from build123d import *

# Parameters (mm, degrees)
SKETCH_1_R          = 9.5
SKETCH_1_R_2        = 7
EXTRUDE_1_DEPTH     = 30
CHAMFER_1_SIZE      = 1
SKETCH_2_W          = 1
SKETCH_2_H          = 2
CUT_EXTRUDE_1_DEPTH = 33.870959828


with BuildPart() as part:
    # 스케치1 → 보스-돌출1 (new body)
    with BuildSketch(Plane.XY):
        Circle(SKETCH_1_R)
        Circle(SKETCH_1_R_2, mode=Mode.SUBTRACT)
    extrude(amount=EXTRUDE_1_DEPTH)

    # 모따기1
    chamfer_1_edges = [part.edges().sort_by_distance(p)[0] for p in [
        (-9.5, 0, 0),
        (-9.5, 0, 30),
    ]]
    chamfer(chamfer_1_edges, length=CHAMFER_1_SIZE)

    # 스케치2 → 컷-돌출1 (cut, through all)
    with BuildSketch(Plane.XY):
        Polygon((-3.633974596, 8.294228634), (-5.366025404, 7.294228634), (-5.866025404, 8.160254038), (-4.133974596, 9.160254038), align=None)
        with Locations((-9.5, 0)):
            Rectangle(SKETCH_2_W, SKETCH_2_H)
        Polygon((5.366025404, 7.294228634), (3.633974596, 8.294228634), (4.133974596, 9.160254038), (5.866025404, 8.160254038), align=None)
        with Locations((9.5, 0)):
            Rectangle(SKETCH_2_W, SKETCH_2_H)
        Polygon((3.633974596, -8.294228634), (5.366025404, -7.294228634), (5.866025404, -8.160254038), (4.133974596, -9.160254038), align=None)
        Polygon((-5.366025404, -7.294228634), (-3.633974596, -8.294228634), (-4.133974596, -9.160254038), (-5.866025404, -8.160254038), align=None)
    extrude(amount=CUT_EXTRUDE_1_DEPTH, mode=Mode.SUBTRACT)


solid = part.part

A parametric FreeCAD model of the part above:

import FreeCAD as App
import Part
import Sketcher

V = App.Vector
Q = App.Units.Quantity


def edges_at(feature, points):
    """Names of the edges that pass closest to the given points."""
    edges = feature.Shape.Edges
    near = lambda p: min(range(len(edges)), key=lambda i: edges[i].distToShape(Part.Vertex(*p))[0])
    return sorted({f"Edge{near(p) + 1}" for p in points})

doc = App.newDocument("Part")
params = doc.addObject("Spreadsheet::Sheet", "Params")
for row, (alias, value) in enumerate([
    ("sketch1_diameter", "19 mm"),
    ("sketch1_diameter2", "14 mm"),
    ("pad1_length", "30 mm"),
    ("chamfer_size", "1 mm"),
    ("sketch2_width", "1 mm"),
    ("sketch2_height", "2 mm"),
    ("sketch2_length", "2 mm"),
    ("sketch2_length2", "1 mm"),
], start=1):
    params.set(f"A{row}", alias)
    params.set(f"B{row}", "=" + value)
    params.setAlias(f"B{row}", alias)

body = doc.addObject("PartDesign::Body", "Body")

sketch1 = body.newObject("Sketcher::SketchObject", "Sketch")
sketch1.AttachmentSupport = (doc.getObject("XY_Plane"), [""])
sketch1.MapMode = "FlatFace"
sketch1.addGeometry([
    Part.Circle(V(0, 0, 0), V(0, 0, 1), 9.5),
    Part.Circle(V(0, 0, 0), V(0, 0, 1), 7),
], False)
sketch1.addConstraint([
    Sketcher.Constraint("Coincident", 0, 3, -1, 1),
    Sketcher.Constraint("Coincident", 1, 3, -1, 1),
    Sketcher.Constraint("Diameter", 0, Q("19 mm")),
    Sketcher.Constraint("Diameter", 1, Q("14 mm")),
])
sketch1.setExpression("Constraints[2]", "Params.sketch1_diameter")
sketch1.setExpression("Constraints[3]", "Params.sketch1_diameter2")
pad1 = body.newObject("PartDesign::Pad", "Pad")
pad1.Profile = sketch1
pad1.setExpression("Length", "Params.pad1_length")
doc.recompute()

chamfer = body.newObject("PartDesign::Chamfer", "Chamfer")
chamfer.Base = (pad1, edges_at(pad1, [(-9.5, 0, 0), (-9.5, 0, 30)]))
chamfer.setExpression("Size", "Params.chamfer_size")

sketch2 = body.newObject("Sketcher::SketchObject", "Sketch001")
sketch2.AttachmentSupport = (doc.getObject("XY_Plane"), [""])
sketch2.MapMode = "FlatFace"
sketch2.addGeometry([
    Part.LineSegment(V(-5.366025, 7.294229, 0), V(-3.633975, 8.294229, 0)),
    Part.LineSegment(V(-3.633975, 8.294229, 0), V(-4.133975, 9.160254, 0)),
    Part.LineSegment(V(-4.133975, 9.160254, 0), V(-5.866025, 8.160254, 0)),
    Part.LineSegment(V(-5.866025, 8.160254, 0), V(-5.366025, 7.294229, 0)),
    Part.LineSegment(V(-10, 1, 0), V(-10, -1, 0)),
    Part.LineSegment(V(-10, -1, 0), V(-9, -1, 0)),
    Part.LineSegment(V(-9, -1, 0), V(-9, 1, 0)),
    Part.LineSegment(V(-9, 1, 0), V(-10, 1, 0)),
    Part.LineSegment(V(3.633975, 8.294229, 0), V(5.366025, 7.294229, 0)),
    Part.LineSegment(V(5.366025, 7.294229, 0), V(5.866025, 8.160254, 0)),
    Part.LineSegment(V(5.866025, 8.160254, 0), V(4.133975, 9.160254, 0)),
    Part.LineSegment(V(4.133975, 9.160254, 0), V(3.633975, 8.294229, 0)),
    Part.LineSegment(V(9, 1, 0), V(9, -1, 0)),
    Part.LineSegment(V(9, -1, 0), V(10, -1, 0)),
    Part.LineSegment(V(10, -1, 0), V(10, 1, 0)),
    Part.LineSegment(V(10, 1, 0), V(9, 1, 0)),
    Part.LineSegment(V(5.366025, -7.294229, 0), V(3.633975, -8.294229, 0)),
    Part.LineSegment(V(3.633975, -8.294229, 0), V(4.133975, -9.160254, 0)),
    Part.LineSegment(V(4.133975, -9.160254, 0), V(5.866025, -8.160254, 0)),
    Part.LineSegment(V(5.866025, -8.160254, 0), V(5.366025, -7.294229, 0)),
    Part.LineSegment(V(-3.633975, -8.294229, 0), V(-5.366025, -7.294229, 0)),
    Part.LineSegment(V(-5.366025, -7.294229, 0), V(-5.866025, -8.160254, 0)),
    Part.LineSegment(V(-5.866025, -8.160254, 0), V(-4.133975, -9.160254, 0)),
    Part.LineSegment(V(-4.133975, -9.160254, 0), V(-3.633975, -8.294229, 0)),
], False)
sketch2.addConstraint([
    Sketcher.Constraint("Coincident", 0, 2, 1, 1),
    Sketcher.Constraint("Coincident", 1, 2, 2, 1),
    Sketcher.Constraint("Coincident", 2, 2, 3, 1),
    Sketcher.Constraint("Coincident", 3, 2, 0, 1),
    Sketcher.Constraint("Coincident", 4, 2, 5, 1),
    Sketcher.Constraint("Coincident", 5, 2, 6, 1),
    Sketcher.Constraint("Coincident", 6, 2, 7, 1),
    Sketcher.Constraint("Coincident", 7, 2, 4, 1),
    Sketcher.Constraint("Coincident", 8, 2, 9, 1),
    Sketcher.Constraint("Coincident", 9, 2, 10, 1),
    Sketcher.Constraint("Coincident", 10, 2, 11, 1),
    Sketcher.Constraint("Coincident", 11, 2, 8, 1),
    Sketcher.Constraint("Coincident", 12, 2, 13, 1),
    Sketcher.Constraint("Coincident", 13, 2, 14, 1),
    Sketcher.Constraint("Coincident", 14, 2, 15, 1),
    Sketcher.Constraint("Coincident", 15, 2, 12, 1),
    Sketcher.Constraint("Coincident", 16, 2, 17, 1),
    Sketcher.Constraint("Coincident", 17, 2, 18, 1),
    Sketcher.Constraint("Coincident", 18, 2, 19, 1),
    Sketcher.Constraint("Coincident", 19, 2, 16, 1),
    Sketcher.Constraint("Coincident", 20, 2, 21, 1),
    Sketcher.Constraint("Coincident", 21, 2, 22, 1),
    Sketcher.Constraint("Coincident", 22, 2, 23, 1),
    Sketcher.Constraint("Coincident", 23, 2, 20, 1),
    Sketcher.Constraint("Vertical", 4),
    Sketcher.Constraint("Horizontal", 5),
    Sketcher.Constraint("Vertical", 6),
    Sketcher.Constraint("Horizontal", 7),
    Sketcher.Constraint("Vertical", 12),
    Sketcher.Constraint("Horizontal", 13),
    Sketcher.Constraint("Vertical", 14),
    Sketcher.Constraint("Horizontal", 15),
    Sketcher.Constraint("Symmetric", 6, 2, 12, 2, -1, 1),
    Sketcher.Constraint("Symmetric", 4, 2, 14, 2, -1, 1),
    Sketcher.Constraint("Symmetric", 0, 2, 16, 2, -1, 1),
    Sketcher.Constraint("Symmetric", 1, 2, 17, 2, -1, 1),
    Sketcher.Constraint("Symmetric", 2, 2, 18, 2, -1, 1),
    Sketcher.Constraint("Symmetric", 3, 2, 19, 2, -1, 1),
    Sketcher.Constraint("Symmetric", 8, 2, 20, 2, -1, 1),
    Sketcher.Constraint("Symmetric", 9, 2, 21, 2, -1, 1),
    Sketcher.Constraint("Symmetric", 10, 2, 22, 2, -1, 1),
    Sketcher.Constraint("Symmetric", 11, 2, 23, 2, -1, 1),
    Sketcher.Constraint("Symmetric", 3, 2, 8, 2, -2),
    Sketcher.Constraint("Symmetric", 2, 2, 9, 2, -2),
    Sketcher.Constraint("Symmetric", 1, 2, 10, 2, -2),
    Sketcher.Constraint("Symmetric", 0, 2, 11, 2, -2),
    Sketcher.Constraint("Perpendicular", 0, 1),
    Sketcher.Constraint("Perpendicular", 1, 2),
    Sketcher.Constraint("Perpendicular", 2, 3),
    Sketcher.Constraint("Horizontal", 5, 2, 12, 2),
    Sketcher.Constraint("DistanceX", 5, 1, 5, 2, Q("1 mm")),
    Sketcher.Constraint("DistanceY", 4, 2, 4, 1, Q("2 mm")),
    Sketcher.Constraint("Angle", 0, Q("30 deg")),
    Sketcher.Constraint("Distance", 0, Q("2 mm")),
    Sketcher.Constraint("Distance", 1, Q("1 mm")),
    Sketcher.Constraint("DistanceX", 4, 2, -1, 1, Q("10 mm")),
    Sketcher.Constraint("DistanceX", 0, 2, 8, 2, Q("9 mm")),
    Sketcher.Constraint("DistanceY", -1, 1, 0, 2, Q("8.294229 mm")),
])
sketch2.setExpression("Constraints[50]", "Params.sketch2_width")
sketch2.setExpression("Constraints[51]", "Params.sketch2_height")
sketch2.setExpression("Constraints[53]", "Params.sketch2_length")
sketch2.setExpression("Constraints[54]", "Params.sketch2_length2")
pocket1 = body.newObject("PartDesign::Pocket", "Pocket")
pocket1.Profile = sketch2
pocket1.Type = "ThroughAll"
pocket1.Reversed = True

doc.recompute()
